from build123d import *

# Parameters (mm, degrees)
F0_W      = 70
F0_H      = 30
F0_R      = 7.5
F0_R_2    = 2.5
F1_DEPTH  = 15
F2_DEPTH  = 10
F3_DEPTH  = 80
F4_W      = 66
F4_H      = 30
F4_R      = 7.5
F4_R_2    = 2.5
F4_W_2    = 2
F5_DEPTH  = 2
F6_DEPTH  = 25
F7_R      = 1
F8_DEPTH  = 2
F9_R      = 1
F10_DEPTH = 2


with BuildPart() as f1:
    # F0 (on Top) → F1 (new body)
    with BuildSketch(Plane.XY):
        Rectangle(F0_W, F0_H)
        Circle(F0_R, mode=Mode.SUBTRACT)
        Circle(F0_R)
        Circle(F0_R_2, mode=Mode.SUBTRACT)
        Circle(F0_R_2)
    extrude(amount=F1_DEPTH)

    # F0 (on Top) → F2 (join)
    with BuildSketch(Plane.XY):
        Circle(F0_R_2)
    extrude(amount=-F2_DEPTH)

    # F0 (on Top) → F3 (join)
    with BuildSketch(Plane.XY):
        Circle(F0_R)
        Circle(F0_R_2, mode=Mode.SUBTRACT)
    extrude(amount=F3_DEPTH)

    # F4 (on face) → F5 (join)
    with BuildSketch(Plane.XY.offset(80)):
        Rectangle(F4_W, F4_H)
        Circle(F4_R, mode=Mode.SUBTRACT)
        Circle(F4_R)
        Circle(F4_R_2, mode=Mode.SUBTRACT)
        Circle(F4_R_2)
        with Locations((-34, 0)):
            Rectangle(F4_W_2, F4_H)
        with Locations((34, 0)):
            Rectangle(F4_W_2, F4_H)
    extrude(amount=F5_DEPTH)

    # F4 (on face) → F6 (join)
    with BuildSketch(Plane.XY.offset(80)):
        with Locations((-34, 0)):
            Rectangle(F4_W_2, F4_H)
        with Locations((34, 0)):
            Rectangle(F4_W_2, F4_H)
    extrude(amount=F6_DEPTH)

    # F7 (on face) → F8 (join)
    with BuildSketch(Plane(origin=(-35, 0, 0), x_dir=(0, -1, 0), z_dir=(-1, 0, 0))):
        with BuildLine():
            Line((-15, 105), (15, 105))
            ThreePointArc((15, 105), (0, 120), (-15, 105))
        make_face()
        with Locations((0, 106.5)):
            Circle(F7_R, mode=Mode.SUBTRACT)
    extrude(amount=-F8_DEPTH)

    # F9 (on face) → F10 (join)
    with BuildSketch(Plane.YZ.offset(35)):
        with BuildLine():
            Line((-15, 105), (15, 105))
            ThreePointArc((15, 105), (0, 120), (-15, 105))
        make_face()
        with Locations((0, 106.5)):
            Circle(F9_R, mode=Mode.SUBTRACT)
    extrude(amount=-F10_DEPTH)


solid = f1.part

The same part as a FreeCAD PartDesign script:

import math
import FreeCAD as App
import Part
import Sketcher
Q = App.Units.Quantity


def add_polygon(sketch, points):
    """Adds a closed chain of lines whose ends are joined by coincident constraints."""
    first, n = sketch.GeometryCount, len(points)
    for a, b in zip(points, points[1:] + points[:1]):
        sketch.addGeometry(Part.LineSegment(App.Vector(*a, 0), App.Vector(*b, 0)), False)
    for i in range(n):
        sketch.addConstraint(Sketcher.Constraint("Coincident", first + i, 2, first + (i + 1) % n, 1))

doc = App.newDocument("Part")
body = doc.addObject("PartDesign::Body", "Body")

# Sketch on XY plane
sketch1 = body.newObject("Sketcher::SketchObject", "Sketch")
sketch1.AttachmentSupport = (doc.getObject("XY_Plane"), [""])
sketch1.MapMode = "FlatFace"
add_polygon(sketch1, [(-35, 15), (-35, -15), (35, -15), (35, 15)])  # lines 0-3
sketch1.addConstraint(Sketcher.Constraint("Vertical", 0))
sketch1.addConstraint(Sketcher.Constraint("Horizontal", 1))
sketch1.addConstraint(Sketcher.Constraint("Vertical", 2))
sketch1.addConstraint(Sketcher.Constraint("Horizontal", 3))
sketch1.addConstraint(Sketcher.Constraint("Symmetric", 0, 2, 2, 2, -1, 1))
sketch1.addConstraint(Sketcher.Constraint("DistanceX", 1, 1, 1, 2, Q("70 mm")))
sketch1.addConstraint(Sketcher.Constraint("DistanceY", 0, 2, 0, 1, Q("30 mm")))
pad1 = body.newObject("PartDesign::Pad", "Pad")
pad1.Profile = sketch1
pad1.Length = 15

# Sketch on XY plane
sketch2 = body.newObject("Sketcher::SketchObject", "Sketch001")
sketch2.AttachmentSupport = (doc.getObject("XY_Plane"), [""])
sketch2.MapMode = "FlatFace"
sketch2.addGeometry(Part.Circle(App.Vector(0, 0, 0), App.Vector(0, 0, 1), 2.5), False)
sketch2.addConstraint(Sketcher.Constraint("Coincident", 0, 3, -1, 1))
sketch2.addConstraint(Sketcher.Constraint("Diameter", 0, Q("5 mm")))
pad2 = body.newObject("PartDesign::Pad", "Pad001")
pad2.Profile = sketch2
pad2.Length = 10
pad2.Reversed = True

# Sketch on XY plane
sketch3 = body.newObject("Sketcher::SketchObject", "Sketch002")
sketch3.AttachmentSupport = (doc.getObject("XY_Plane"), [""])
sketch3.MapMode = "FlatFace"
sketch3.addGeometry(Part.Circle(App.Vector(0, 0, 0), App.Vector(0, 0, 1), 7.5), False)
sketch3.addGeometry(Part.Circle(App.Vector(0, 0, 0), App.Vector(0, 0, 1), 2.5), False)
sketch3.addConstraint(Sketcher.Constraint("Coincident", 0, 3, -1, 1))
sketch3.addConstraint(Sketcher.Constraint("Coincident", 1, 3, -1, 1))
sketch3.addConstraint(Sketcher.Constraint("Diameter", 0, Q("15 mm")))
sketch3.addConstraint(Sketcher.Constraint("Diameter", 1, Q("5 mm")))
pad3 = body.newObject("PartDesign::Pad", "Pad002")
pad3.Profile = sketch3
pad3.Length = 80

# Sketch on XY plane
sketch4 = body.newObject("Sketcher::SketchObject", "Sketch003")
sketch4.AttachmentSupport = (doc.getObject("XY_Plane"), [""])
sketch4.MapMode = "FlatFace"
sketch4.AttachmentOffset = App.Placement(App.Vector(0, 0, 80), App.Rotation())
add_polygon(sketch4, [(-35, 15), (-35, -15), (35, -15), (35, 15)])  # lines 0-3
sketch4.addConstraint(Sketcher.Constraint("Vertical", 0))
sketch4.addConstraint(Sketcher.Constraint("Horizontal", 1))
sketch4.addConstraint(Sketcher.Constraint("Vertical", 2))
sketch4.addConstraint(Sketcher.Constraint("Horizontal", 3))
sketch4.addConstraint(Sketcher.Constraint("Symmetric", 0, 2, 2, 2, -1, 1))
sketch4.addConstraint(Sketcher.Constraint("DistanceX", 1, 1, 1, 2, Q("70 mm")))
sketch4.addConstraint(Sketcher.Constraint("DistanceY", 0, 2, 0, 1, Q("30 mm")))
pad4 = body.newObject("PartDesign::Pad", "Pad003")
pad4.Profile = sketch4
pad4.Length = 2

# Sketch on XY plane
sketch5 = body.newObject("Sketcher::SketchObject", "Sketch004")
sketch5.AttachmentSupport = (doc.getObject("XY_Plane"), [""])
sketch5.MapMode = "FlatFace"
sketch5.AttachmentOffset = App.Placement(App.Vector(0, 0, 80), App.Rotation())
add_polygon(sketch5, [(-35, 15), (-35, -15), (-33, -15), (-33, 15)])  # lines 0-3
add_polygon(sketch5, [(33, 15), (33, -15), (35, -15), (35, 15)])  # lines 4-7
sketch5.addConstraint(Sketcher.Constraint("Vertical", 0))
sketch5.addConstraint(Sketcher.Constraint("Horizontal", 1))
sketch5.addConstraint(Sketcher.Constraint("Vertical", 2))
sketch5.addConstraint(Sketcher.Constraint("Horizontal", 3))
sketch5.addConstraint(Sketcher.Constraint("Vertical", 4))
sketch5.addConstraint(Sketcher.Constraint("Horizontal", 5))
sketch5.addConstraint(Sketcher.Constraint("Vertical", 6))
sketch5.addConstraint(Sketcher.Constraint("Horizontal", 7))
sketch5.addConstraint(Sketcher.Constraint("Symmetric", 2, 2, 4, 2, -1, 1))
sketch5.addConstraint(Sketcher.Constraint("Symmetric", 0, 2, 6, 2, -1, 1))
sketch5.addConstraint(Sketcher.Constraint("Horizontal", 1, 2, 4, 2))
sketch5.addConstraint(Sketcher.Constraint("DistanceX", 1, 1, 1, 2, Q("2 mm")))
sketch5.addConstraint(Sketcher.Constraint("DistanceY", 0, 2, 0, 1, Q("30 mm")))
sketch5.addConstraint(Sketcher.Constraint("DistanceX", 0, 2, -1, 1, Q("35 mm")))
pad5 = body.newObject("PartDesign::Pad", "Pad004")
pad5.Profile = sketch5
pad5.Length = 25

# Sketch on YZ plane
sketch6 = body.newObject("Sketcher::SketchObject", "Sketch005")
sketch6.AttachmentSupport = (doc.getObject("YZ_Plane"), [""])
sketch6.MapMode = "FlatFace"
sketch6.AttachmentOffset = App.Placement(App.Vector(0, 0, -35), App.Rotation())
sketch6.addGeometry(Part.LineSegment(App.Vector(15, 105, 0), App.Vector(-15, 105, 0)), False)
sketch6.addGeometry(Part.ArcOfCircle(Part.Circle(App.Vector(0, 105, 0), App.Vector(0, 0, 1), 15), math.radians(0), math.radians(180)), False)
sketch6.addGeometry(Part.Circle(App.Vector(0, 106.5, 0), App.Vector(0, 0, 1), 1), False)
sketch6.addConstraint(Sketcher.Constraint("Coincident", 0, 1, 1, 1))
sketch6.addConstraint(Sketcher.Constraint("Coincident", 1, 2, 0, 2))
sketch6.addConstraint(Sketcher.Constraint("Horizontal", 0))
sketch6.addConstraint(Sketcher.Constraint("PointOnObject", 1, 3, -2))
sketch6.addConstraint(Sketcher.Constraint("PointOnObject", 2, 3, -2))
sketch6.addConstraint(Sketcher.Constraint("Horizontal", 1, 3, 0, 1))
sketch6.addConstraint(Sketcher.Constraint("Diameter", 2, Q("2 mm")))
sketch6.addConstraint(Sketcher.Constraint("Radius", 1, Q("15 mm")))
sketch6.addConstraint(Sketcher.Constraint("DistanceY", -1, 1, 1, 3, Q("105 mm")))
sketch6.addConstraint(Sketcher.Constraint("DistanceY", -1, 1, 2, 3, Q("106.5 mm")))
pad6 = body.newObject("PartDesign::Pad", "Pad005")
pad6.Profile = sketch6
pad6.Length = 2

# Sketch on YZ plane
sketch7 = body.newObject("Sketcher::SketchObject", "Sketch006")
sketch7.AttachmentSupport = (doc.getObject("YZ_Plane"), [""])
sketch7.MapMode = "FlatFace"
sketch7.AttachmentOffset = App.Placement(App.Vector(0, 0, 35), App.Rotation())
sketch7.addGeometry(Part.LineSegment(App.Vector(-15, 105, 0), App.Vector(15, 105, 0)), False)
sketch7.addGeometry(Part.ArcOfCircle(Part.Circle(App.Vector(0, 105, 0), App.Vector(0, 0, 1), 15), math.radians(0), math.radians(180)), False)
sketch7.addGeometry(Part.Circle(App.Vector(0, 106.5, 0), App.Vector(0, 0, 1), 1), False)
sketch7.addConstraint(Sketcher.Constraint("Coincident", 0, 1, 1, 2))
sketch7.addConstraint(Sketcher.Constraint("Coincident", 1, 1, 0, 2))
sketch7.addConstraint(Sketcher.Constraint("Horizontal", 0))
sketch7.addConstraint(Sketcher.Constraint("PointOnObject", 1, 3, -2))
sketch7.addConstraint(Sketcher.Constraint("PointOnObject", 2, 3, -2))
sketch7.addConstraint(Sketcher.Constraint("Horizontal", 1, 3, 0, 1))
sketch7.addConstraint(Sketcher.Constraint("Diameter", 2, Q("2 mm")))
sketch7.addConstraint(Sketcher.Constraint("Radius", 1, Q("15 mm")))
sketch7.addConstraint(Sketcher.Constraint("DistanceY", -1, 1, 1, 3, Q("105 mm")))
sketch7.addConstraint(Sketcher.Constraint("DistanceY", -1, 1, 2, 3, Q("106.5 mm")))
pad7 = body.newObject("PartDesign::Pad", "Pad006")
pad7.Profile = sketch7
pad7.Length = 2
pad7.Reversed = True

doc.recompute()
